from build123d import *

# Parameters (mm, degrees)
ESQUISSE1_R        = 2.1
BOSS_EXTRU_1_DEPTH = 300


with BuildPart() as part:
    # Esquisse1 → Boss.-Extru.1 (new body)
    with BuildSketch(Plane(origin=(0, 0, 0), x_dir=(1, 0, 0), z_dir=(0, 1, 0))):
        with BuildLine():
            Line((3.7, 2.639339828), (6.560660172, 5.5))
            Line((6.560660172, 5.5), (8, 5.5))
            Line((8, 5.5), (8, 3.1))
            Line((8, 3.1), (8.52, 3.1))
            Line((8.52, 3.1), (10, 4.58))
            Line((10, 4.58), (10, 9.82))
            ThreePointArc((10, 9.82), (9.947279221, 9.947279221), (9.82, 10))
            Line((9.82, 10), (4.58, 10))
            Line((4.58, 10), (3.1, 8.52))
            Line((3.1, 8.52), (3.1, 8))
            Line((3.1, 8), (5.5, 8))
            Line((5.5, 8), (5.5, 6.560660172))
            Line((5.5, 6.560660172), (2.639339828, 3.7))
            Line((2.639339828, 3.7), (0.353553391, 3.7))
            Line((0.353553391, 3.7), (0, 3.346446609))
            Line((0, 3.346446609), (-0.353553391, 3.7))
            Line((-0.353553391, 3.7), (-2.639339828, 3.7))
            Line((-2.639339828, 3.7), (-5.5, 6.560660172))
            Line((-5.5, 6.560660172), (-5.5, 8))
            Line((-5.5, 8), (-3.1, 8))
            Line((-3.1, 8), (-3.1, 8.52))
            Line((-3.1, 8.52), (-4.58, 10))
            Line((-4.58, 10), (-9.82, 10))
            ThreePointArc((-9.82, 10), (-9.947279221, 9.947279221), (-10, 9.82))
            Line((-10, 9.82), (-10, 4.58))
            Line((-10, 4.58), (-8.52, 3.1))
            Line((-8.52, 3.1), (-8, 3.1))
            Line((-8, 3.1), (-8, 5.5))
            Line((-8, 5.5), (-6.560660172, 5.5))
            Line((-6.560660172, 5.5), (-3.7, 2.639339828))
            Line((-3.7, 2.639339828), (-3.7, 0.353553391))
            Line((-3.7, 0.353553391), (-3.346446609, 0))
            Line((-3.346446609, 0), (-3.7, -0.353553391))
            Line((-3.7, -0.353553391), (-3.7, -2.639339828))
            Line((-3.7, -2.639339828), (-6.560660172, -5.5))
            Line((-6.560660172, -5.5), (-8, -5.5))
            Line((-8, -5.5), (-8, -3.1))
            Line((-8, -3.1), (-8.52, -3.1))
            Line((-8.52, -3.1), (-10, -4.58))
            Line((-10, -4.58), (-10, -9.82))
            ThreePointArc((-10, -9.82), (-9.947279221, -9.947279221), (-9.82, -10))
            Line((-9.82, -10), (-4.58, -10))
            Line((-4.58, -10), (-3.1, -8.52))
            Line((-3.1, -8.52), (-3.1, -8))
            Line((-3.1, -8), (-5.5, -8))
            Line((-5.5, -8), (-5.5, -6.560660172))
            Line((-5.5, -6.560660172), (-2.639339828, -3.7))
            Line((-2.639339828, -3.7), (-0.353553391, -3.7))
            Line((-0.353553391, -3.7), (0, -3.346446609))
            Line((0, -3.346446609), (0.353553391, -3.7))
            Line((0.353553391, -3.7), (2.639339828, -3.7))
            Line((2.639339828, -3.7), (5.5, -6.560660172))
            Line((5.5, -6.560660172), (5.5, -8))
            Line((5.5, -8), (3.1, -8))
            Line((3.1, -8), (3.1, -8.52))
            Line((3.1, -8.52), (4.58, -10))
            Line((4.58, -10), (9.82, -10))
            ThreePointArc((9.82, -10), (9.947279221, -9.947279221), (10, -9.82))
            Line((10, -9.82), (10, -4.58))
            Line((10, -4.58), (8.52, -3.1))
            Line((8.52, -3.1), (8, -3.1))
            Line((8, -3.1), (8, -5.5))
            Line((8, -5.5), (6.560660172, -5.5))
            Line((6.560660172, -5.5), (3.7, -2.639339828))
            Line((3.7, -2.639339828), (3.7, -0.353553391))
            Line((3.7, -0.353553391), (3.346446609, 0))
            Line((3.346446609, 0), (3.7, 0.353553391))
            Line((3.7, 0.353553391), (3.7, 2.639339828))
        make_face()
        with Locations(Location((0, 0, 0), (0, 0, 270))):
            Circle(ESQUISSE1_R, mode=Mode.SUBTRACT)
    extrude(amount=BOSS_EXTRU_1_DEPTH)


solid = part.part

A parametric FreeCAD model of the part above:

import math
import FreeCAD as App
import Part
import Sketcher
from FreeCAD import Vector
Q = App.Units.Quantity

doc = App.newDocument("Part")
body = doc.addObject("PartDesign::Body", "Body")

sketch1 = body.newObject("Sketcher::SketchObject", "Sketch")
sketch1.AttachmentSupport = (doc.getObject("XZ_Plane"), [""])
sketch1.MapMode = "FlatFace"
sketch1.addGeometry(Part.LineSegment(Vector(3.7, -2.64, 0), Vector(6.56, -5.5, 0)), False)
sketch1.addGeometry(Part.LineSegment(Vector(6.56, -5.5, 0), Vector(8, -5.5, 0)), False)
sketch1.addGeometry(Part.LineSegment(Vector(8, -5.5, 0), Vector(8, -3.1, 0)), False)
sketch1.addGeometry(Part.LineSegment(Vector(8, -3.1, 0), Vector(8.52, -3.1, 0)), False)
sketch1.addGeometry(Part.LineSegment(Vector(8.52, -3.1, 0), Vector(10, -4.58, 0)), False)
sketch1.addGeometry(Part.LineSegment(Vector(10, -4.58, 0), Vector(10, -9.82, 0)), False)
sketch1.addGeometry(Part.ArcOfCircle(Part.Circle(Vector(9.82, -9.82, 0), Vector(0, 0, 1), 0.18), math.radians(-90), math.radians(0)), False)
sketch1.addGeometry(Part.LineSegment(Vector(9.82, -10, 0), Vector(4.58, -10, 0)), False)
sketch1.addGeometry(Part.LineSegment(Vector(4.58, -10, 0), Vector(3.1, -8.52, 0)), False)
sketch1.addGeometry(Part.LineSegment(Vector(3.1, -8.52, 0), Vector(3.1, -8, 0)), False)
sketch1.addGeometry(Part.LineSegment(Vector(3.1, -8, 0), Vector(5.5, -8, 0)), False)
sketch1.addGeometry(Part.LineSegment(Vector(5.5, -8, 0), Vector(5.5, -6.56, 0)), False)
sketch1.addGeometry(Part.LineSegment(Vector(5.5, -6.56, 0), Vector(2.64, -3.7, 0)), False)
sketch1.addGeometry(Part.LineSegment(Vector(2.64, -3.7, 0), Vector(0.35, -3.7, 0)), False)
sketch1.addGeometry(Part.LineSegment(Vector(0.35, -3.7, 0), Vector(0, -3.35, 0)), False)
sketch1.addGeometry(Part.LineSegment(Vector(0, -3.35, 0), Vector(-0.35, -3.7, 0)), False)
sketch1.addGeometry(Part.LineSegment(Vector(-0.35, -3.7, 0), Vector(-2.64, -3.7, 0)), False)
sketch1.addGeometry(Part.LineSegment(Vector(-2.64, -3.7, 0), Vector(-5.5, -6.56, 0)), False)
sketch1.addGeometry(Part.LineSegment(Vector(-5.5, -6.56, 0), Vector(-5.5, -8, 0)), False)
sketch1.addGeometry(Part.LineSegment(Vector(-5.5, -8, 0), Vector(-3.1, -8, 0)), False)
sketch1.addGeometry(Part.LineSegment(Vector(-3.1, -8, 0), Vector(-3.1, -8.52, 0)), False)
sketch1.addGeometry(Part.LineSegment(Vector(-3.1, -8.52, 0), Vector(-4.58, -10, 0)), False)
sketch1.addGeometry(Part.LineSegment(Vector(-4.58, -10, 0), Vector(-9.82, -10, 0)), False)
sketch1.addGeometry(Part.ArcOfCircle(Part.Circle(Vector(-9.82, -9.82, 0), Vector(0, 0, 1), 0.18), math.radians(180), math.radians(270)), False)
sketch1.addGeometry(Part.LineSegment(Vector(-10, -9.82, 0), Vector(-10, -4.58, 0)), False)
sketch1.addGeometry(Part.LineSegment(Vector(-10, -4.58, 0), Vector(-8.52, -3.1, 0)), False)
sketch1.addGeometry(Part.LineSegment(Vector(-8.52, -3.1, 0), Vector(-8, -3.1, 0)), False)
sketch1.addGeometry(Part.LineSegment(Vector(-8, -3.1, 0), Vector(-8, -5.5, 0)), False)
sketch1.addGeometry(Part.LineSegment(Vector(-8, -5.5, 0), Vector(-6.56, -5.5, 0)), False)
sketch1.addGeometry(Part.LineSegment(Vector(-6.56, -5.5, 0), Vector(-3.7, -2.64, 0)), False)
sketch1.addGeometry(Part.LineSegment(Vector(-3.7, -2.64, 0), Vector(-3.7, -0.35, 0)), False)
sketch1.addGeometry(Part.LineSegment(Vector(-3.7, -0.35, 0), Vector(-3.35, 0, 0)), False)
sketch1.addGeometry(Part.LineSegment(Vector(-3.35, 0, 0), Vector(-3.7, 0.35, 0)), False)
sketch1.addGeometry(Part.LineSegment(Vector(-3.7, 0.35, 0), Vector(-3.7, 2.64, 0)), False)
sketch1.addGeometry(Part.LineSegment(Vector(-3.7, 2.64, 0), Vector(-6.56, 5.5, 0)), False)
sketch1.addGeometry(Part.LineSegment(Vector(-6.56, 5.5, 0), Vector(-8, 5.5, 0)), False)
sketch1.addGeometry(Part.LineSegment(Vector(-8, 5.5, 0), Vector(-8, 3.1, 0)), False)
sketch1.addGeometry(Part.LineSegment(Vector(-8, 3.1, 0), Vector(-8.52, 3.1, 0)), False)
sketch1.addGeometry(Part.LineSegment(Vector(-8.52, 3.1, 0), Vector(-10, 4.58, 0)), False)
sketch1.addGeometry(Part.LineSegment(Vector(-10, 4.58, 0), Vector(-10, 9.82, 0)), False)
sketch1.addGeometry(Part.ArcOfCircle(Part.Circle(Vector(-9.82, 9.82, 0), Vector(0, 0, 1), 0.18), math.radians(90), math.radians(180)), False)
sketch1.addGeometry(Part.LineSegment(Vector(-9.82, 10, 0), Vector(-4.58, 10, 0)), False)
sketch1.addGeometry(Part.LineSegment(Vector(-4.58, 10, 0), Vector(-3.1, 8.52, 0)), False)
sketch1.addGeometry(Part.LineSegment(Vector(-3.1, 8.52, 0), Vector(-3.1, 8, 0)), False)
sketch1.addGeometry(Part.LineSegment(Vector(-3.1, 8, 0), Vector(-5.5, 8, 0)), False)
sketch1.addGeometry(Part.LineSegment(Vector(-5.5, 8, 0), Vector(-5.5, 6.56, 0)), False)
sketch1.addGeometry(Part.LineSegment(Vector(-5.5, 6.56, 0), Vector(-2.64, 3.7, 0)), False)
sketch1.addGeometry(Part.LineSegment(Vector(-2.64, 3.7, 0), Vector(-0.35, 3.7, 0)), False)
sketch1.addGeometry(Part.LineSegment(Vector(-0.35, 3.7, 0), Vector(0, 3.35, 0)), False)
sketch1.addGeometry(Part.LineSegment(Vector(0, 3.35, 0), Vector(0.35, 3.7, 0)), False)
sketch1.addGeometry(Part.LineSegment(Vector(0.35, 3.7, 0), Vector(2.64, 3.7, 0)), False)
sketch1.addGeometry(Part.LineSegment(Vector(2.64, 3.7, 0), Vector(5.5, 6.56, 0)), False)
sketch1.addGeometry(Part.LineSegment(Vector(5.5, 6.56, 0), Vector(5.5, 8, 0)), False)
sketch1.addGeometry(Part.LineSegment(Vector(5.5, 8, 0), Vector(3.1, 8, 0)), False)
sketch1.addGeometry(Part.LineSegment(Vector(3.1, 8, 0), Vector(3.1, 8.52, 0)), False)
sketch1.addGeometry(Part.LineSegment(Vector(3.1, 8.52, 0), Vector(4.58, 10, 0)), False)
sketch1.addGeometry(Part.LineSegment(Vector(4.58, 10, 0), Vector(9.82, 10, 0)), False)
sketch1.addGeometry(Part.ArcOfCircle(Part.Circle(Vector(9.82, 9.82, 0), Vector(0, 0, 1), 0.18), math.radians(0), math.radians(90)), False)
sketch1.addGeometry(Part.LineSegment(Vector(10, 9.82, 0), Vector(10, 4.58, 0)), False)
sketch1.addGeometry(Part.LineSegment(Vector(10, 4.58, 0), Vector(8.52, 3.1, 0)), False)
sketch1.addGeometry(Part.LineSegment(Vector(8.52, 3.1, 0), Vector(8, 3.1, 0)), False)
sketch1.addGeometry(Part.LineSegment(Vector(8, 3.1, 0), Vector(8, 5.5, 0)), False)
sketch1.addGeometry(Part.LineSegment(Vector(8, 5.5, 0), Vector(6.56, 5.5, 0)), False)
sketch1.addGeometry(Part.LineSegment(Vector(6.56, 5.5, 0), Vector(3.7, 2.64, 0)), False)
sketch1.addGeometry(Part.LineSegment(Vector(3.7, 2.64, 0), Vector(3.7, 0.35, 0)), False)
sketch1.addGeometry(Part.LineSegment(Vector(3.7, 0.35, 0), Vector(3.35, 0, 0)), False)
sketch1.addGeometry(Part.LineSegment(Vector(3.35, 0, 0), Vector(3.7, -0.35, 0)), False)
sketch1.addGeometry(Part.LineSegment(Vector(3.7, -0.35, 0), Vector(3.7, -2.64, 0)), False)
sketch1.addGeometry(Part.Circle(Vector(0, 0, 0), Vector(0, 0, 1), 2.1), False)
sketch1.addConstraint(Sketcher.Constraint("Coincident", 0, 2, 1, 1))
sketch1.addConstraint(Sketcher.Constraint("Coincident", 1, 2, 2, 1))
sketch1.addConstraint(Sketcher.Constraint("Coincident", 2, 2, 3, 1))
sketch1.addConstraint(Sketcher.Constraint("Coincident", 3, 2, 4, 1))
sketch1.addConstraint(Sketcher.Constraint("Coincident", 4, 2, 5, 1))
sketch1.addConstraint(Sketcher.Constraint("Tangent", 5, 2, 6, 2))
sketch1.addConstraint(Sketcher.Constraint("Tangent", 6, 1, 7, 1))
sketch1.addConstraint(Sketcher.Constraint("Coincident", 7, 2, 8, 1))
sketch1.addConstraint(Sketcher.Constraint("Coincident", 8, 2, 9, 1))
sketch1.addConstraint(Sketcher.Constraint("Coincident", 9, 2, 10, 1))
sketch1.addConstraint(Sketcher.Constraint("Coincident", 10, 2, 11, 1))
sketch1.addConstraint(Sketcher.Constraint("Coincident", 11, 2, 12, 1))
sketch1.addConstraint(Sketcher.Constraint("Coincident", 12, 2, 13, 1))
sketch1.addConstraint(Sketcher.Constraint("Coincident", 13, 2, 14, 1))
sketch1.addConstraint(Sketcher.Constraint("Coincident", 14, 2, 15, 1))
sketch1.addConstraint(Sketcher.Constraint("Coincident", 15, 2, 16, 1))
sketch1.addConstraint(Sketcher.Constraint("Coincident", 16, 2, 17, 1))
sketch1.addConstraint(Sketcher.Constraint("Coincident", 17, 2, 18, 1))
sketch1.addConstraint(Sketcher.Constraint("Coincident", 18, 2, 19, 1))
sketch1.addConstraint(Sketcher.Constraint("Coincident", 19, 2, 20, 1))
sketch1.addConstraint(Sketcher.Constraint("Coincident", 20, 2, 21, 1))
sketch1.addConstraint(Sketcher.Constraint("Coincident", 21, 2, 22, 1))
sketch1.addConstraint(Sketcher.Constraint("Tangent", 22, 2, 23, 2))
sketch1.addConstraint(Sketcher.Constraint("Tangent", 23, 1, 24, 1))
sketch1.addConstraint(Sketcher.Constraint("Coincident", 24, 2, 25, 1))
sketch1.addConstraint(Sketcher.Constraint("Coincident", 25, 2, 26, 1))
sketch1.addConstraint(Sketcher.Constraint("Coincident", 26, 2, 27, 1))
sketch1.addConstraint(Sketcher.Constraint("Coincident", 27, 2, 28, 1))
sketch1.addConstraint(Sketcher.Constraint("Coincident", 28, 2, 29, 1))
sketch1.addConstraint(Sketcher.Constraint("Coincident", 29, 2, 30, 1))
sketch1.addConstraint(Sketcher.Constraint("Coincident", 30, 2, 31, 1))
sketch1.addConstraint(Sketcher.Constraint("Coincident", 31, 2, 32, 1))
sketch1.addConstraint(Sketcher.Constraint("Coincident", 32, 2, 33, 1))
sketch1.addConstraint(Sketcher.Constraint("Coincident", 33, 2, 34, 1))
sketch1.addConstraint(Sketcher.Constraint("Coincident", 34, 2, 35, 1))
sketch1.addConstraint(Sketcher.Constraint("Coincident", 35, 2, 36, 1))
sketch1.addConstraint(Sketcher.Constraint("Coincident", 36, 2, 37, 1))
sketch1.addConstraint(Sketcher.Constraint("Coincident", 37, 2, 38, 1))
sketch1.addConstraint(Sketcher.Constraint("Coincident", 38, 2, 39, 1))
sketch1.addConstraint(Sketcher.Constraint("Tangent", 39, 2, 40, 2))
sketch1.addConstraint(Sketcher.Constraint("Tangent", 40, 1, 41, 1))
sketch1.addConstraint(Sketcher.Constraint("Coincident", 41, 2, 42, 1))
sketch1.addConstraint(Sketcher.Constraint("Coincident", 42, 2, 43, 1))
sketch1.addConstraint(Sketcher.Constraint("Coincident", 43, 2, 44, 1))
sketch1.addConstraint(Sketcher.Constraint("Coincident", 44, 2, 45, 1))
sketch1.addConstraint(Sketcher.Constraint("Coincident", 45, 2, 46, 1))
sketch1.addConstraint(Sketcher.Constraint("Coincident", 46, 2, 47, 1))
sketch1.addConstraint(Sketcher.Constraint("Coincident", 47, 2, 48, 1))
sketch1.addConstraint(Sketcher.Constraint("Coincident", 48, 2, 49, 1))
sketch1.addConstraint(Sketcher.Constraint("Coincident", 49, 2, 50, 1))
sketch1.addConstraint(Sketcher.Constraint("Coincident", 50, 2, 51, 1))
sketch1.addConstraint(Sketcher.Constraint("Coincident", 51, 2, 52, 1))
sketch1.addConstraint(Sketcher.Constraint("Coincident", 52, 2, 53, 1))
sketch1.addConstraint(Sketcher.Constraint("Coincident", 53, 2, 54, 1))
sketch1.addConstraint(Sketcher.Constraint("Coincident", 54, 2, 55, 1))
sketch1.addConstraint(Sketcher.Constraint("Coincident", 55, 2, 56, 1))
sketch1.addConstraint(Sketcher.Constraint("Tangent", 56, 2, 57, 2))
sketch1.addConstraint(Sketcher.Constraint("Tangent", 57, 1, 58, 1))
sketch1.addConstraint(Sketcher.Constraint("Coincident", 58, 2, 59, 1))
sketch1.addConstraint(Sketcher.Constraint("Coincident", 59, 2, 60, 1))
sketch1.addConstraint(Sketcher.Constraint("Coincident", 60, 2, 61, 1))
sketch1.addConstraint(Sketcher.Constraint("Coincident", 61, 2, 62, 1))
sketch1.addConstraint(Sketcher.Constraint("Coincident", 62, 2, 63, 1))
sketch1.addConstraint(Sketcher.Constraint("Coincident", 63, 2, 64, 1))
sketch1.addConstraint(Sketcher.Constraint("Coincident", 64, 2, 65, 1))
sketch1.addConstraint(Sketcher.Constraint("Coincident", 65, 2, 66, 1))
sketch1.addConstraint(Sketcher.Constraint("Coincident", 66, 2, 67, 1))
sketch1.addConstraint(Sketcher.Constraint("Coincident", 67, 2, 0, 1))
sketch1.addConstraint(Sketcher.Constraint("Horizontal", 1))
sketch1.addConstraint(Sketcher.Constraint("Vertical", 2))
sketch1.addConstraint(Sketcher.Constraint("Horizontal", 3))
sketch1.addConstraint(Sketcher.Constraint("Vertical", 5))
sketch1.addConstraint(Sketcher.Constraint("Horizontal", 7))
sketch1.addConstraint(Sketcher.Constraint("Vertical", 9))
sketch1.addConstraint(Sketcher.Constraint("Horizontal", 10))
sketch1.addConstraint(Sketcher.Constraint("Vertical", 11))
sketch1.addConstraint(Sketcher.Constraint("Horizontal", 13))
sketch1.addConstraint(Sketcher.Constraint("Horizontal", 16))
sketch1.addConstraint(Sketcher.Constraint("Vertical", 18))
sketch1.addConstraint(Sketcher.Constraint("Horizontal", 19))
sketch1.addConstraint(Sketcher.Constraint("Vertical", 20))
sketch1.addConstraint(Sketcher.Constraint("Horizontal", 22))
sketch1.addConstraint(Sketcher.Constraint("Vertical", 24))
sketch1.addConstraint(Sketcher.Constraint("Horizontal", 26))
sketch1.addConstraint(Sketcher.Constraint("Vertical", 27))
sketch1.addConstraint(Sketcher.Constraint("Horizontal", 28))
sketch1.addConstraint(Sketcher.Constraint("Vertical", 30))
sketch1.addConstraint(Sketcher.Constraint("Vertical", 33))
sketch1.addConstraint(Sketcher.Constraint("Horizontal", 35))
sketch1.addConstraint(Sketcher.Constraint("Vertical", 36))
sketch1.addConstraint(Sketcher.Constraint("Horizontal", 37))
sketch1.addConstraint(Sketcher.Constraint("Vertical", 39))
sketch1.addConstraint(Sketcher.Constraint("Horizontal", 41))
sketch1.addConstraint(Sketcher.Constraint("Vertical", 43))
sketch1.addConstraint(Sketcher.Constraint("Horizontal", 44))
sketch1.addConstraint(Sketcher.Constraint("Vertical", 45))
sketch1.addConstraint(Sketcher.Constraint("Horizontal", 47))
sketch1.addConstraint(Sketcher.Constraint("Horizontal", 50))
sketch1.addConstraint(Sketcher.Constraint("Vertical", 52))
sketch1.addConstraint(Sketcher.Constraint("Horizontal", 53))
sketch1.addConstraint(Sketcher.Constraint("Vertical", 54))
sketch1.addConstraint(Sketcher.Constraint("Horizontal", 56))
sketch1.addConstraint(Sketcher.Constraint("Vertical", 58))
sketch1.addConstraint(Sketcher.Constraint("Horizontal", 60))
sketch1.addConstraint(Sketcher.Constraint("Vertical", 61))
sketch1.addConstraint(Sketcher.Constraint("Horizontal", 62))
sketch1.addConstraint(Sketcher.Constraint("Vertical", 64))
sketch1.addConstraint(Sketcher.Constraint("Vertical", 67))
sketch1.addConstraint(Sketcher.Constraint("Coincident", 68, 3, -1, 1))
sketch1.addConstraint(Sketcher.Constraint("Equal", 6, 23))
sketch1.addConstraint(Sketcher.Constraint("Equal", 23, 40))
sketch1.addConstraint(Sketcher.Constraint("Equal", 40, 57))
sketch1.addConstraint(Sketcher.Constraint("Symmetric", 6, 3, 40, 3, -1, 1))
sketch1.addConstraint(Sketcher.Constraint("Symmetric", 23, 3, 57, 3, -1, 1))
sketch1.addConstraint(Sketcher.Constraint("Symmetric", 0, 2, 34, 2, -1, 1))
sketch1.addConstraint(Sketcher.Constraint("Symmetric", 2, 2, 36, 2, -1, 1))
sketch1.addConstraint(Sketcher.Constraint("Symmetric", 8, 2, 42, 2, -1, 1))
sketch1.addConstraint(Sketcher.Constraint("Symmetric", 10, 2, 44, 2, -1, 1))
sketch1.addConstraint(Sketcher.Constraint("Symmetric", 12, 2, 46, 2, -1, 1))
sketch1.addConstraint(Sketcher.Constraint("Symmetric", 14, 2, 48, 2, -1, 1))
sketch1.addConstraint(Sketcher.Constraint("Symmetric", 15, 2, 49, 2, -1, 1))
sketch1.addConstraint(Sketcher.Constraint("Symmetric", 17, 2, 51, 2, -1, 1))
sketch1.addConstraint(Sketcher.Constraint("Symmetric", 19, 2, 53, 2, -1, 1))
sketch1.addConstraint(Sketcher.Constraint("Symmetric", 25, 2, 59, 2, -1, 1))
sketch1.addConstraint(Sketcher.Constraint("Symmetric", 27, 2, 61, 2, -1, 1))
sketch1.addConstraint(Sketcher.Constraint("Symmetric", 29, 2, 63, 2, -1, 1))
sketch1.addConstraint(Sketcher.Constraint("Symmetric", 31, 2, 65, 2, -1, 1))
sketch1.addConstraint(Sketcher.Constraint("Symmetric", 32, 2, 66, 2, -1, 1))
sketch1.addConstraint(Sketcher.Constraint("Symmetric", 6, 3, 23, 3, -2))
sketch1.addConstraint(Sketcher.Constraint("Symmetric", 13, 2, 15, 2, -2))
sketch1.addConstraint(Sketcher.Constraint("Symmetric", 11, 2, 17, 2, -2))
sketch1.addConstraint(Sketcher.Constraint("Symmetric", 9, 2, 19, 2, -2))
sketch1.addConstraint(Sketcher.Constraint("Symmetric", 3, 2, 25, 2, -2))
sketch1.addConstraint(Sketcher.Constraint("Symmetric", 1, 2, 27, 2, -2))
sketch1.addConstraint(Sketcher.Constraint("Symmetric", 33, 2, 63, 2, -2))
sketch1.addConstraint(Sketcher.Constraint("PointOnObject", 14, 2, -2))
sketch1.addConstraint(Sketcher.Constraint("PointOnObject", 31, 2, -1))
sketch1.addConstraint(Sketcher.Constraint("Parallel", 0, 4))
sketch1.addConstraint(Sketcher.Constraint("Parallel", 4, 8))
sketch1.addConstraint(Sketcher.Constraint("Parallel", 8, 12))
sketch1.addConstraint(Sketcher.Constraint("Parallel", 12, 14))
sketch1.addConstraint(Sketcher.Constraint("Perpendicular", 14, 15))
sketch1.addConstraint(Sketcher.Constraint("Parallel", 15, 17))
sketch1.addConstraint(Sketcher.Constraint("Parallel", 17, 21))
sketch1.addConstraint(Sketcher.Constraint("Parallel", 21, 25))
sketch1.addConstraint(Sketcher.Constraint("Parallel", 25, 29))
sketch1.addConstraint(Sketcher.Constraint("Parallel", 29, 31))
sketch1.addConstraint(Sketcher.Constraint("Perpendicular", 31, 32))
sketch1.addConstraint(Sketcher.Constraint("Parallel", 32, 34))
sketch1.addConstraint(Sketcher.Constraint("Parallel", 34, 38))
sketch1.addConstraint(Sketcher.Constraint("Parallel", 38, 42))
sketch1.addConstraint(Sketcher.Constraint("Parallel", 42, 46))
sketch1.addConstraint(Sketcher.Constraint("Parallel", 46, 48))
sketch1.addConstraint(Sketcher.Constraint("Parallel", 49, 51))
sketch1.addConstraint(Sketcher.Constraint("Parallel", 51, 55))
sketch1.addConstraint(Sketcher.Constraint("Parallel", 55, 59))
sketch1.addConstraint(Sketcher.Constraint("Parallel", 59, 63))
sketch1.addConstraint(Sketcher.Constraint("Parallel", 63, 65))
sketch1.addConstraint(Sketcher.Constraint("Horizontal", 8, 2, 20, 2))
sketch1.addConstraint(Sketcher.Constraint("Horizontal", 42, 2, 54, 2))
sketch1.addConstraint(Sketcher.Constraint("Horizontal", 38, 2, 58, 2))
sketch1.addConstraint(Sketcher.Constraint("Equal", 53, 2))
sketch1.addConstraint(Sketcher.Constraint("Equal", 56, 5))
sketch1.addConstraint(Sketcher.Constraint("Equal", 60, 9))
sketch1.addConstraint(Sketcher.Constraint("Equal", 62, 11))
sketch1.addConstraint(Sketcher.Constraint("Equal", 50, 30))
sketch1.addConstraint(Sketcher.Constraint("Equal", 4, 8))
sketch1.addConstraint(Sketcher.Constraint("Equal", 0, 12))
sketch1.addConstraint(Sketcher.Constraint("Equal", 15, 31))
sketch1.addConstraint(Sketcher.Constraint("Diameter", 68, Q("4.2 mm")))
sketch1.addConstraint(Sketcher.Constraint("Radius", 6, Q("0.18 mm")))
sketch1.addConstraint(Sketcher.Constraint("DistanceX", 10, 1, 10, 2, Q("2.4 mm")))
sketch1.addConstraint(Sketcher.Constraint("DistanceX", -1, 1, 1, 2, Q("8 mm")))
sketch1.addConstraint(Sketcher.Constraint("DistanceX", -1, 1, 4, 2, Q("10 mm")))
sketch1.addConstraint(Sketcher.Constraint("Distance", 14, Q("0.5 mm")))
sketch1.addConstraint(Sketcher.Constraint("DistanceX", 3, 1, 3, 2, Q("0.52 mm")))
sketch1.addConstraint(Sketcher.Constraint("DistanceX", 7, 2, 7, 1, Q("5.24 mm")))
sketch1.addConstraint(Sketcher.Constraint("DistanceY", 12, 2, -1, 1, Q("3.7 mm")))
sketch1.addConstraint(Sketcher.Constraint("DistanceX", 1, 1, 1, 2, Q("1.43934 mm")))
pad1 = body.newObject("PartDesign::Pad", "Pad")
pad1.Profile = sketch1
pad1.Length = 300
pad1.Reversed = True

doc.recompute()
